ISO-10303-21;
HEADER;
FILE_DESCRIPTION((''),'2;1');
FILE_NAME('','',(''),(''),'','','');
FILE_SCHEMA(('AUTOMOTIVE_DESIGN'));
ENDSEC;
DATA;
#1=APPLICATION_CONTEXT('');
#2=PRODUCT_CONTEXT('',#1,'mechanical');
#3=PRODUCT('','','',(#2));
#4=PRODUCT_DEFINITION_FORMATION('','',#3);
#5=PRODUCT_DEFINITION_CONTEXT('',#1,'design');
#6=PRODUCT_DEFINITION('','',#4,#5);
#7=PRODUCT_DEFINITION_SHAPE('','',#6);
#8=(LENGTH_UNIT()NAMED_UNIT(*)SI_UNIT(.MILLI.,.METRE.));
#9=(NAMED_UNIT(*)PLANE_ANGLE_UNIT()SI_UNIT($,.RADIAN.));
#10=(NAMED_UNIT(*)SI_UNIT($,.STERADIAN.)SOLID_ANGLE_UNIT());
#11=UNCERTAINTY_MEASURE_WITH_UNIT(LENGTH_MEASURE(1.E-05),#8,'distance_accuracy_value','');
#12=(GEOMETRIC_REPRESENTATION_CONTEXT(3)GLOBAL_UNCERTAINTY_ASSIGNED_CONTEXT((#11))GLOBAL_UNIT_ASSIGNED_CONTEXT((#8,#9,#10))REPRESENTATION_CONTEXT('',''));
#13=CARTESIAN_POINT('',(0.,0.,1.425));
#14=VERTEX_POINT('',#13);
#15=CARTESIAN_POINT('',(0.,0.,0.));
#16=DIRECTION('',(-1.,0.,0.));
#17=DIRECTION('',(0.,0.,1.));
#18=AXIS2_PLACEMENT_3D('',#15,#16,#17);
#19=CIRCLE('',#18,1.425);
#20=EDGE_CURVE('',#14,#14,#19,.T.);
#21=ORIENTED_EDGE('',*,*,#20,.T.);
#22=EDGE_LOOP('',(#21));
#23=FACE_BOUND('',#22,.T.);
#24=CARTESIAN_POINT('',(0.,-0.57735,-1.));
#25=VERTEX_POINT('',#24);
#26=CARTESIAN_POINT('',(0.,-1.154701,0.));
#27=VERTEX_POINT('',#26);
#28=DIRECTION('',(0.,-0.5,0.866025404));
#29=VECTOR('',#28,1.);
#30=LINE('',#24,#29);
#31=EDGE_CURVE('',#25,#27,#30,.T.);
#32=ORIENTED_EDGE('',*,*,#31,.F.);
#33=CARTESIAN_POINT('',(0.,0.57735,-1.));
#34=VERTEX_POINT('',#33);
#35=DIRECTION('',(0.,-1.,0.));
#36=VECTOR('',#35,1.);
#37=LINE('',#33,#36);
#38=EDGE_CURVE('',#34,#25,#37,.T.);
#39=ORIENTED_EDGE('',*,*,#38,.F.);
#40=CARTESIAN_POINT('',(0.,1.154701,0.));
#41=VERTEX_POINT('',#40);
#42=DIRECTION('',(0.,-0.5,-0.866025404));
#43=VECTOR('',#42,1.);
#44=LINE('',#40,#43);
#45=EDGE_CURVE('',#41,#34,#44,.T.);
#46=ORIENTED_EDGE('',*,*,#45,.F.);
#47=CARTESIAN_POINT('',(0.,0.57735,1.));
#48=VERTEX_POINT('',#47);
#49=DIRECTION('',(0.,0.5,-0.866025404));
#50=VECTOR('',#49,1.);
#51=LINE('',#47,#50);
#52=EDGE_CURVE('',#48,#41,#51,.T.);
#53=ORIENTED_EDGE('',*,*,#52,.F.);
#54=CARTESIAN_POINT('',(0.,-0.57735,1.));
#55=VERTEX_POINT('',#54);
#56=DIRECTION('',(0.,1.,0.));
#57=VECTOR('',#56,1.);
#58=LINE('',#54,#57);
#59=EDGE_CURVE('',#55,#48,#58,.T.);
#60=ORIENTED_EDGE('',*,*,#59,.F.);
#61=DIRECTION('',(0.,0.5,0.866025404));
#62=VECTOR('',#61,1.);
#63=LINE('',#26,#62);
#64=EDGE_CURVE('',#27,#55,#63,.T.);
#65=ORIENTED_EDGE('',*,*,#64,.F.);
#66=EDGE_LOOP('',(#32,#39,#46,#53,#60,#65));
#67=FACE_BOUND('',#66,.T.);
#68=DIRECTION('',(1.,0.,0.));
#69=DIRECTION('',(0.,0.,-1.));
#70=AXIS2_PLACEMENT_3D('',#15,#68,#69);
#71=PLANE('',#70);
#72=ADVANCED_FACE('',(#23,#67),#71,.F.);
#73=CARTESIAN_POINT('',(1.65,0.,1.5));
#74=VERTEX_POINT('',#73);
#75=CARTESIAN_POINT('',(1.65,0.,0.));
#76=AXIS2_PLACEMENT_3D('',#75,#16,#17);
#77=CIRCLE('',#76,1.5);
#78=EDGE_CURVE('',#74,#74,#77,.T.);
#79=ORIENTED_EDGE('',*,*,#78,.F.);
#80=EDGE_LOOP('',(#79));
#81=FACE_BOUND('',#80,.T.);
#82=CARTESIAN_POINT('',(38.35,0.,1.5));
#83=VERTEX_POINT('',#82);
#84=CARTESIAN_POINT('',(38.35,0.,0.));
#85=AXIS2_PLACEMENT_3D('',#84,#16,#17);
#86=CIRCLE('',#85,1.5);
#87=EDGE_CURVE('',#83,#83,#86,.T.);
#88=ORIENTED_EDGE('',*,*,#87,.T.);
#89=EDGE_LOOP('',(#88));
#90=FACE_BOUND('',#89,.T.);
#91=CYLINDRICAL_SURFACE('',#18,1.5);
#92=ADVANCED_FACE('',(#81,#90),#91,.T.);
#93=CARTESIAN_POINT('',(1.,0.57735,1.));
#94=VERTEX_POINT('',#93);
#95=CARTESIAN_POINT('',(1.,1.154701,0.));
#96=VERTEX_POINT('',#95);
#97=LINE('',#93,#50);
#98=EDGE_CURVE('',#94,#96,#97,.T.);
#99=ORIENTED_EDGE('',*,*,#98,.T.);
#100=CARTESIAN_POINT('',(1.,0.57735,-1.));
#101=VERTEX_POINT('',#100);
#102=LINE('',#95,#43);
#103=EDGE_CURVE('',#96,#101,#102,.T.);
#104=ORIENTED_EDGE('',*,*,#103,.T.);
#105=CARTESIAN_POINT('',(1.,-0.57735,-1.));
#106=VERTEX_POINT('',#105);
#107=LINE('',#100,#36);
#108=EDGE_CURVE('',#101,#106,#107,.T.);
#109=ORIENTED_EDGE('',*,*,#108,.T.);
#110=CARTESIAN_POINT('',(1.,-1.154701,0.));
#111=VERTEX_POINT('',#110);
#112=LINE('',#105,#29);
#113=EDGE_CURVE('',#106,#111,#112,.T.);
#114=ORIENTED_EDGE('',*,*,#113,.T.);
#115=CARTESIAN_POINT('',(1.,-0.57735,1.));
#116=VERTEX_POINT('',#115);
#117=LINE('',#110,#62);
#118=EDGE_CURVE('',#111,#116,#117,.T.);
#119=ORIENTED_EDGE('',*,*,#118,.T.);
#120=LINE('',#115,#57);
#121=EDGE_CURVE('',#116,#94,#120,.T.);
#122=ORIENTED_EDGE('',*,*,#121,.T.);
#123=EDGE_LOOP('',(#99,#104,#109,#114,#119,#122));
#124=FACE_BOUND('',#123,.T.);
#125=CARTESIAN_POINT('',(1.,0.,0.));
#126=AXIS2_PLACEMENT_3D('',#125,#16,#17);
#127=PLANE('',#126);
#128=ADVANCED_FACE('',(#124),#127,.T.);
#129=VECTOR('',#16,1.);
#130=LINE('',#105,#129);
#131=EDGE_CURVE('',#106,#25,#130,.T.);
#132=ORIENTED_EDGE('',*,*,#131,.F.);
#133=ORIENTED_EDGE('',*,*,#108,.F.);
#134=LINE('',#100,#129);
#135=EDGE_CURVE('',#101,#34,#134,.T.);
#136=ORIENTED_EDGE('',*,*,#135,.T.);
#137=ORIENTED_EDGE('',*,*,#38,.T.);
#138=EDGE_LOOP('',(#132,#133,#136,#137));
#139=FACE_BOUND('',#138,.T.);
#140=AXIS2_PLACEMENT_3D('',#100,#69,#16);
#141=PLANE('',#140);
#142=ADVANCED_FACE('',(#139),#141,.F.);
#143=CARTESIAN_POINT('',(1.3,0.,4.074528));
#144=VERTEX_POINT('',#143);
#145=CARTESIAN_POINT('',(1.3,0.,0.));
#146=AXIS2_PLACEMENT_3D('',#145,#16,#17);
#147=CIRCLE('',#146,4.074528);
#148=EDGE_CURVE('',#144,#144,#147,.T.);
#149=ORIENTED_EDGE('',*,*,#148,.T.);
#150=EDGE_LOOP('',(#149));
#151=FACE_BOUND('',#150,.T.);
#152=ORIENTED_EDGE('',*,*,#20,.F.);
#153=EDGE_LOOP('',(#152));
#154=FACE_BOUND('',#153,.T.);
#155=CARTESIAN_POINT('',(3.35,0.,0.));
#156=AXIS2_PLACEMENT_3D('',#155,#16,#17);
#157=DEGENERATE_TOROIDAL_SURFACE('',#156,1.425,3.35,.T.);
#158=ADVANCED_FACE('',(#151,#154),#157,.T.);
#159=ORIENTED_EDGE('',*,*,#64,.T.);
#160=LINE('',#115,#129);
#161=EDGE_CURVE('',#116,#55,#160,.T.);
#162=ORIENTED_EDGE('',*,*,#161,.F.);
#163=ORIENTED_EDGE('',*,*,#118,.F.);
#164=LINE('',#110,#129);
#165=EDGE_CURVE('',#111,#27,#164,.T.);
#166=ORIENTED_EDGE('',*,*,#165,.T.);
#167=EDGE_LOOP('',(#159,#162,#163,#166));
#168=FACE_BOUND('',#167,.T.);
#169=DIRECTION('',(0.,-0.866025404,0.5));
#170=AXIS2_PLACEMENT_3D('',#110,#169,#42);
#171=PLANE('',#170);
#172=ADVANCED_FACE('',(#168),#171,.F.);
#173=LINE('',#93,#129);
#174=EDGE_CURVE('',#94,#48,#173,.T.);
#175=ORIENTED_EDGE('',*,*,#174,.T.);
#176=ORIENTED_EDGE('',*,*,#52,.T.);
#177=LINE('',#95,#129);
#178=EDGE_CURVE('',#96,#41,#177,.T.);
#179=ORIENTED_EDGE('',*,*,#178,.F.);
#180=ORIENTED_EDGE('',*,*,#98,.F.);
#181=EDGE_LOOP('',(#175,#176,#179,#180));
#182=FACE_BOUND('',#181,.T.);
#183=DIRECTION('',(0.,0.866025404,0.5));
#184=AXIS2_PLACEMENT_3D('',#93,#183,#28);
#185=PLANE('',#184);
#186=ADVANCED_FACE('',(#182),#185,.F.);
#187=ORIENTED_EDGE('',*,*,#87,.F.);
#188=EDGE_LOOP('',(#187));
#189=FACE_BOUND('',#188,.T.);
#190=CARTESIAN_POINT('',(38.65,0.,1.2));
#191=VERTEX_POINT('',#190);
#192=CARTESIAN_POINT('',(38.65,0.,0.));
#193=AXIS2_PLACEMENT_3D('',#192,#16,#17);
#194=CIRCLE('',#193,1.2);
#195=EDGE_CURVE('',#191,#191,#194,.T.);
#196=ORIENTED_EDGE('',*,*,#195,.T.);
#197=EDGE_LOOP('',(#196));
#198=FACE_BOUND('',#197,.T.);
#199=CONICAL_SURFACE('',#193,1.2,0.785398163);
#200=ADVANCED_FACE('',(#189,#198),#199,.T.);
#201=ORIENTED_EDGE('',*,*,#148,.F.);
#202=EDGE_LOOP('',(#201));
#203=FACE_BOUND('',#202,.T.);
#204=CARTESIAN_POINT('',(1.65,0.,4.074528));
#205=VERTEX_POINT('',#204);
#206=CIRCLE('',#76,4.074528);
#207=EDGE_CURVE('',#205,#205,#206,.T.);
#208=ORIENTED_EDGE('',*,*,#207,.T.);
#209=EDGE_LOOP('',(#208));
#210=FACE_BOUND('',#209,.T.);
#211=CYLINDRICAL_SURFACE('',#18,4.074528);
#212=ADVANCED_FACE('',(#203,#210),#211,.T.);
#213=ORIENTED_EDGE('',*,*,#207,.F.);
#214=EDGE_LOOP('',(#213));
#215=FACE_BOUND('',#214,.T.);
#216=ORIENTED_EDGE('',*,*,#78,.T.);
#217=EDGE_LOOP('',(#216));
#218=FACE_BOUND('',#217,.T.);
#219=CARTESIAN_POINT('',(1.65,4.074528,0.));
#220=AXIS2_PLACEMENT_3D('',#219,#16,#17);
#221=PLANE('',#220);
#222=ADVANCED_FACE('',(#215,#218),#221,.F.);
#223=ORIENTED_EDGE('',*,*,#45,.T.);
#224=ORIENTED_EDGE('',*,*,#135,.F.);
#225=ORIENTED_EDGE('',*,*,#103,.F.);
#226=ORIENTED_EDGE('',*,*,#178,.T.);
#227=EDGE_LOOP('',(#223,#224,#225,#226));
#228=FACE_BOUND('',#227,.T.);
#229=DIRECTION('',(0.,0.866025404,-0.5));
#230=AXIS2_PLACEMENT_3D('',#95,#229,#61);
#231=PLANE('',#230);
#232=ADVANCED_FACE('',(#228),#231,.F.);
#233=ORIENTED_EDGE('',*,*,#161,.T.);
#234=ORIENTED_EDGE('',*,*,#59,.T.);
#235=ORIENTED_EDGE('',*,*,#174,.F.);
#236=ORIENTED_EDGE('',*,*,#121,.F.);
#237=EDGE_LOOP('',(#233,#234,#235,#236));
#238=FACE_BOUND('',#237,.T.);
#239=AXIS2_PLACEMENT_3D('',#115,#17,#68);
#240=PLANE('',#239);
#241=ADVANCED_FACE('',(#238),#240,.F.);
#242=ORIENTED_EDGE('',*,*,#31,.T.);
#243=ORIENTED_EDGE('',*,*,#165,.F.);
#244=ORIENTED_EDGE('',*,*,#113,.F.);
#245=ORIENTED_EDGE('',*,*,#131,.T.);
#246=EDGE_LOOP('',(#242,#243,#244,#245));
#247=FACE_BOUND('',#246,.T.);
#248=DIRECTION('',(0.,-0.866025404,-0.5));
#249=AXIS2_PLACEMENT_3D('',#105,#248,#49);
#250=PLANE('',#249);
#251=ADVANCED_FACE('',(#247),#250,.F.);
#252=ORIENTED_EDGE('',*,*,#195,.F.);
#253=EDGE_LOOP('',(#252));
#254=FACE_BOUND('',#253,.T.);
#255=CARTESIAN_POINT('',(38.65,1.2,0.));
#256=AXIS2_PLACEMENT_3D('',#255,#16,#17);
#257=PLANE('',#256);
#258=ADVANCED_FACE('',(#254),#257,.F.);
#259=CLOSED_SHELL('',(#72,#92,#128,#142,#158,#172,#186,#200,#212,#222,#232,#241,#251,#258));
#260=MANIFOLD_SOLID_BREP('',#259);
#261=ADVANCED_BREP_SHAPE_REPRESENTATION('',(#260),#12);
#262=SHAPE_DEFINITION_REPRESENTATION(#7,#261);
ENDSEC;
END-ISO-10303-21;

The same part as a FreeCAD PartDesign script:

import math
import FreeCAD as App
import Part
import Sketcher
Q = App.Units.Quantity

doc = App.newDocument("Part")
body = doc.addObject("PartDesign::Body", "Body")

# Sketch on XY plane
sketch1 = doc.addObject("Sketcher::SketchObject", "Sketch")
body.addObject(sketch1)
sketch1.AttachmentSupport = (doc.XY_Plane, [""])
sketch1.MapMode = "FlatFace"
sketch1.addGeometry([
    Part.LineSegment(App.Vector(0, 1.43, 0), App.Vector(0, 0, 0)),  # 0
    Part.LineSegment(App.Vector(0, 0, 0), App.Vector(38.65, 0, 0)),  # 1
    Part.LineSegment(App.Vector(38.65, 0, 0), App.Vector(38.65, 1.2, 0)),  # 2
    Part.LineSegment(App.Vector(38.65, 1.2, 0), App.Vector(38.35, 1.5, 0)),  # 3
    Part.LineSegment(App.Vector(38.35, 1.5, 0), App.Vector(1.65, 1.5, 0)),  # 4
    Part.LineSegment(App.Vector(1.65, 1.5, 0), App.Vector(1.65, 4.07, 0)),  # 5
    Part.LineSegment(App.Vector(1.65, 4.07, 0), App.Vector(1.3, 4.07, 0)),  # 6
    Part.ArcOfCircle(Part.Circle(App.Vector(3.35, 1.42, 0), App.Vector(0, 0, 1), 3.35), math.radians(128), math.radians(180)),  # 7
], False)
sketch1.addConstraint([
    Sketcher.Constraint("Coincident", 0, 2, 1, 1),
    Sketcher.Constraint("Coincident", 1, 2, 2, 1),
    Sketcher.Constraint("Coincident", 2, 2, 3, 1),
    Sketcher.Constraint("Coincident", 3, 2, 4, 1),
    Sketcher.Constraint("Coincident", 4, 2, 5, 1),
    Sketcher.Constraint("Coincident", 5, 2, 6, 1),
    Sketcher.Constraint("Coincident", 6, 2, 7, 1),
    Sketcher.Constraint("Tangent", 7, 2, 0, 1),
    Sketcher.Constraint("Vertical", 0),
    Sketcher.Constraint("Horizontal", 1),
    Sketcher.Constraint("Vertical", 2),
    Sketcher.Constraint("Horizontal", 4),
    Sketcher.Constraint("Vertical", 5),
    Sketcher.Constraint("Horizontal", 6),
    Sketcher.Constraint("Coincident", 0, 2, -1, 1),
    Sketcher.Constraint("Angle", 3, Q("135 deg")),
    Sketcher.Constraint("Radius", 7, Q("3.35 mm")),
    Sketcher.Constraint("DistanceX", 4, 2, 4, 1, Q("36.7 mm")),
    Sketcher.Constraint("DistanceY", 2, 1, 2, 2, Q("1.2 mm")),
    Sketcher.Constraint("DistanceX", 7, 3, 3, 2, Q("35 mm")),
    Sketcher.Constraint("DistanceX", 4, 2, 2, 2, Q("37 mm")),
    Sketcher.Constraint("DistanceX", 6, 2, 6, 1, Q("0.35 mm")),
    Sketcher.Constraint("DistanceY", 0, 2, 0, 1, Q("1.425 mm")),
])
revolution = doc.addObject("PartDesign::Revolution", "Revolution")
body.addObject(revolution)
revolution.Profile = sketch1
revolution.ReferenceAxis = (sketch1, ["H_Axis"])
revolution.Angle = 360

# Sketch on YZ plane
sketch2 = doc.addObject("Sketcher::SketchObject", "Sketch001")
body.addObject(sketch2)
sketch2.AttachmentSupport = (doc.YZ_Plane, [""])
sketch2.MapMode = "FlatFace"
sketch2.addGeometry([
    Part.LineSegment(App.Vector(1.2, 0, 0), App.Vector(0.6, -1, 0)),  # 0
    Part.LineSegment(App.Vector(0.6, -1, 0), App.Vector(-0.6, -1, 0)),  # 1
    Part.LineSegment(App.Vector(-0.6, -1, 0), App.Vector(-1.2, 0, 0)),  # 2
    Part.LineSegment(App.Vector(-1.2, 0, 0), App.Vector(-0.6, 1, 0)),  # 3
    Part.LineSegment(App.Vector(-0.6, 1, 0), App.Vector(0.6, 1, 0)),  # 4
    Part.LineSegment(App.Vector(0.6, 1, 0), App.Vector(1.2, 0, 0)),  # 5
], False)
sketch2.addConstraint([
    Sketcher.Constraint("Coincident", 0, 2, 1, 1),
    Sketcher.Constraint("Coincident", 1, 2, 2, 1),
    Sketcher.Constraint("Coincident", 2, 2, 3, 1),
    Sketcher.Constraint("Coincident", 3, 2, 4, 1),
    Sketcher.Constraint("Coincident", 4, 2, 5, 1),
    Sketcher.Constraint("Coincident", 5, 2, 0, 1),
    Sketcher.Constraint("Horizontal", 1),
    Sketcher.Constraint("Horizontal", 4),
    Sketcher.Constraint("Symmetric", 0, 2, 3, 2, -1, 1),
    Sketcher.Constraint("Symmetric", 2, 2, 5, 2, -1, 1),
    Sketcher.Constraint("PointOnObject", 2, 2, -1),
    Sketcher.Constraint("Parallel", 2, 5),
    Sketcher.Constraint("Vertical", 1, 2, 3, 2),
    Sketcher.Constraint("Angle", 0, Q("-120 deg")),
    Sketcher.Constraint("DistanceY", 0, 2, -1, 1, Q("1 mm")),
    Sketcher.Constraint("DistanceX", 1, 2, 1, 1, Q("1.154701 mm")),
])
pocket1 = doc.addObject("PartDesign::Pocket", "Pocket")
body.addObject(pocket1)
pocket1.Profile = sketch2
pocket1.Length = 1
pocket1.Reversed = True

doc.recompute()
